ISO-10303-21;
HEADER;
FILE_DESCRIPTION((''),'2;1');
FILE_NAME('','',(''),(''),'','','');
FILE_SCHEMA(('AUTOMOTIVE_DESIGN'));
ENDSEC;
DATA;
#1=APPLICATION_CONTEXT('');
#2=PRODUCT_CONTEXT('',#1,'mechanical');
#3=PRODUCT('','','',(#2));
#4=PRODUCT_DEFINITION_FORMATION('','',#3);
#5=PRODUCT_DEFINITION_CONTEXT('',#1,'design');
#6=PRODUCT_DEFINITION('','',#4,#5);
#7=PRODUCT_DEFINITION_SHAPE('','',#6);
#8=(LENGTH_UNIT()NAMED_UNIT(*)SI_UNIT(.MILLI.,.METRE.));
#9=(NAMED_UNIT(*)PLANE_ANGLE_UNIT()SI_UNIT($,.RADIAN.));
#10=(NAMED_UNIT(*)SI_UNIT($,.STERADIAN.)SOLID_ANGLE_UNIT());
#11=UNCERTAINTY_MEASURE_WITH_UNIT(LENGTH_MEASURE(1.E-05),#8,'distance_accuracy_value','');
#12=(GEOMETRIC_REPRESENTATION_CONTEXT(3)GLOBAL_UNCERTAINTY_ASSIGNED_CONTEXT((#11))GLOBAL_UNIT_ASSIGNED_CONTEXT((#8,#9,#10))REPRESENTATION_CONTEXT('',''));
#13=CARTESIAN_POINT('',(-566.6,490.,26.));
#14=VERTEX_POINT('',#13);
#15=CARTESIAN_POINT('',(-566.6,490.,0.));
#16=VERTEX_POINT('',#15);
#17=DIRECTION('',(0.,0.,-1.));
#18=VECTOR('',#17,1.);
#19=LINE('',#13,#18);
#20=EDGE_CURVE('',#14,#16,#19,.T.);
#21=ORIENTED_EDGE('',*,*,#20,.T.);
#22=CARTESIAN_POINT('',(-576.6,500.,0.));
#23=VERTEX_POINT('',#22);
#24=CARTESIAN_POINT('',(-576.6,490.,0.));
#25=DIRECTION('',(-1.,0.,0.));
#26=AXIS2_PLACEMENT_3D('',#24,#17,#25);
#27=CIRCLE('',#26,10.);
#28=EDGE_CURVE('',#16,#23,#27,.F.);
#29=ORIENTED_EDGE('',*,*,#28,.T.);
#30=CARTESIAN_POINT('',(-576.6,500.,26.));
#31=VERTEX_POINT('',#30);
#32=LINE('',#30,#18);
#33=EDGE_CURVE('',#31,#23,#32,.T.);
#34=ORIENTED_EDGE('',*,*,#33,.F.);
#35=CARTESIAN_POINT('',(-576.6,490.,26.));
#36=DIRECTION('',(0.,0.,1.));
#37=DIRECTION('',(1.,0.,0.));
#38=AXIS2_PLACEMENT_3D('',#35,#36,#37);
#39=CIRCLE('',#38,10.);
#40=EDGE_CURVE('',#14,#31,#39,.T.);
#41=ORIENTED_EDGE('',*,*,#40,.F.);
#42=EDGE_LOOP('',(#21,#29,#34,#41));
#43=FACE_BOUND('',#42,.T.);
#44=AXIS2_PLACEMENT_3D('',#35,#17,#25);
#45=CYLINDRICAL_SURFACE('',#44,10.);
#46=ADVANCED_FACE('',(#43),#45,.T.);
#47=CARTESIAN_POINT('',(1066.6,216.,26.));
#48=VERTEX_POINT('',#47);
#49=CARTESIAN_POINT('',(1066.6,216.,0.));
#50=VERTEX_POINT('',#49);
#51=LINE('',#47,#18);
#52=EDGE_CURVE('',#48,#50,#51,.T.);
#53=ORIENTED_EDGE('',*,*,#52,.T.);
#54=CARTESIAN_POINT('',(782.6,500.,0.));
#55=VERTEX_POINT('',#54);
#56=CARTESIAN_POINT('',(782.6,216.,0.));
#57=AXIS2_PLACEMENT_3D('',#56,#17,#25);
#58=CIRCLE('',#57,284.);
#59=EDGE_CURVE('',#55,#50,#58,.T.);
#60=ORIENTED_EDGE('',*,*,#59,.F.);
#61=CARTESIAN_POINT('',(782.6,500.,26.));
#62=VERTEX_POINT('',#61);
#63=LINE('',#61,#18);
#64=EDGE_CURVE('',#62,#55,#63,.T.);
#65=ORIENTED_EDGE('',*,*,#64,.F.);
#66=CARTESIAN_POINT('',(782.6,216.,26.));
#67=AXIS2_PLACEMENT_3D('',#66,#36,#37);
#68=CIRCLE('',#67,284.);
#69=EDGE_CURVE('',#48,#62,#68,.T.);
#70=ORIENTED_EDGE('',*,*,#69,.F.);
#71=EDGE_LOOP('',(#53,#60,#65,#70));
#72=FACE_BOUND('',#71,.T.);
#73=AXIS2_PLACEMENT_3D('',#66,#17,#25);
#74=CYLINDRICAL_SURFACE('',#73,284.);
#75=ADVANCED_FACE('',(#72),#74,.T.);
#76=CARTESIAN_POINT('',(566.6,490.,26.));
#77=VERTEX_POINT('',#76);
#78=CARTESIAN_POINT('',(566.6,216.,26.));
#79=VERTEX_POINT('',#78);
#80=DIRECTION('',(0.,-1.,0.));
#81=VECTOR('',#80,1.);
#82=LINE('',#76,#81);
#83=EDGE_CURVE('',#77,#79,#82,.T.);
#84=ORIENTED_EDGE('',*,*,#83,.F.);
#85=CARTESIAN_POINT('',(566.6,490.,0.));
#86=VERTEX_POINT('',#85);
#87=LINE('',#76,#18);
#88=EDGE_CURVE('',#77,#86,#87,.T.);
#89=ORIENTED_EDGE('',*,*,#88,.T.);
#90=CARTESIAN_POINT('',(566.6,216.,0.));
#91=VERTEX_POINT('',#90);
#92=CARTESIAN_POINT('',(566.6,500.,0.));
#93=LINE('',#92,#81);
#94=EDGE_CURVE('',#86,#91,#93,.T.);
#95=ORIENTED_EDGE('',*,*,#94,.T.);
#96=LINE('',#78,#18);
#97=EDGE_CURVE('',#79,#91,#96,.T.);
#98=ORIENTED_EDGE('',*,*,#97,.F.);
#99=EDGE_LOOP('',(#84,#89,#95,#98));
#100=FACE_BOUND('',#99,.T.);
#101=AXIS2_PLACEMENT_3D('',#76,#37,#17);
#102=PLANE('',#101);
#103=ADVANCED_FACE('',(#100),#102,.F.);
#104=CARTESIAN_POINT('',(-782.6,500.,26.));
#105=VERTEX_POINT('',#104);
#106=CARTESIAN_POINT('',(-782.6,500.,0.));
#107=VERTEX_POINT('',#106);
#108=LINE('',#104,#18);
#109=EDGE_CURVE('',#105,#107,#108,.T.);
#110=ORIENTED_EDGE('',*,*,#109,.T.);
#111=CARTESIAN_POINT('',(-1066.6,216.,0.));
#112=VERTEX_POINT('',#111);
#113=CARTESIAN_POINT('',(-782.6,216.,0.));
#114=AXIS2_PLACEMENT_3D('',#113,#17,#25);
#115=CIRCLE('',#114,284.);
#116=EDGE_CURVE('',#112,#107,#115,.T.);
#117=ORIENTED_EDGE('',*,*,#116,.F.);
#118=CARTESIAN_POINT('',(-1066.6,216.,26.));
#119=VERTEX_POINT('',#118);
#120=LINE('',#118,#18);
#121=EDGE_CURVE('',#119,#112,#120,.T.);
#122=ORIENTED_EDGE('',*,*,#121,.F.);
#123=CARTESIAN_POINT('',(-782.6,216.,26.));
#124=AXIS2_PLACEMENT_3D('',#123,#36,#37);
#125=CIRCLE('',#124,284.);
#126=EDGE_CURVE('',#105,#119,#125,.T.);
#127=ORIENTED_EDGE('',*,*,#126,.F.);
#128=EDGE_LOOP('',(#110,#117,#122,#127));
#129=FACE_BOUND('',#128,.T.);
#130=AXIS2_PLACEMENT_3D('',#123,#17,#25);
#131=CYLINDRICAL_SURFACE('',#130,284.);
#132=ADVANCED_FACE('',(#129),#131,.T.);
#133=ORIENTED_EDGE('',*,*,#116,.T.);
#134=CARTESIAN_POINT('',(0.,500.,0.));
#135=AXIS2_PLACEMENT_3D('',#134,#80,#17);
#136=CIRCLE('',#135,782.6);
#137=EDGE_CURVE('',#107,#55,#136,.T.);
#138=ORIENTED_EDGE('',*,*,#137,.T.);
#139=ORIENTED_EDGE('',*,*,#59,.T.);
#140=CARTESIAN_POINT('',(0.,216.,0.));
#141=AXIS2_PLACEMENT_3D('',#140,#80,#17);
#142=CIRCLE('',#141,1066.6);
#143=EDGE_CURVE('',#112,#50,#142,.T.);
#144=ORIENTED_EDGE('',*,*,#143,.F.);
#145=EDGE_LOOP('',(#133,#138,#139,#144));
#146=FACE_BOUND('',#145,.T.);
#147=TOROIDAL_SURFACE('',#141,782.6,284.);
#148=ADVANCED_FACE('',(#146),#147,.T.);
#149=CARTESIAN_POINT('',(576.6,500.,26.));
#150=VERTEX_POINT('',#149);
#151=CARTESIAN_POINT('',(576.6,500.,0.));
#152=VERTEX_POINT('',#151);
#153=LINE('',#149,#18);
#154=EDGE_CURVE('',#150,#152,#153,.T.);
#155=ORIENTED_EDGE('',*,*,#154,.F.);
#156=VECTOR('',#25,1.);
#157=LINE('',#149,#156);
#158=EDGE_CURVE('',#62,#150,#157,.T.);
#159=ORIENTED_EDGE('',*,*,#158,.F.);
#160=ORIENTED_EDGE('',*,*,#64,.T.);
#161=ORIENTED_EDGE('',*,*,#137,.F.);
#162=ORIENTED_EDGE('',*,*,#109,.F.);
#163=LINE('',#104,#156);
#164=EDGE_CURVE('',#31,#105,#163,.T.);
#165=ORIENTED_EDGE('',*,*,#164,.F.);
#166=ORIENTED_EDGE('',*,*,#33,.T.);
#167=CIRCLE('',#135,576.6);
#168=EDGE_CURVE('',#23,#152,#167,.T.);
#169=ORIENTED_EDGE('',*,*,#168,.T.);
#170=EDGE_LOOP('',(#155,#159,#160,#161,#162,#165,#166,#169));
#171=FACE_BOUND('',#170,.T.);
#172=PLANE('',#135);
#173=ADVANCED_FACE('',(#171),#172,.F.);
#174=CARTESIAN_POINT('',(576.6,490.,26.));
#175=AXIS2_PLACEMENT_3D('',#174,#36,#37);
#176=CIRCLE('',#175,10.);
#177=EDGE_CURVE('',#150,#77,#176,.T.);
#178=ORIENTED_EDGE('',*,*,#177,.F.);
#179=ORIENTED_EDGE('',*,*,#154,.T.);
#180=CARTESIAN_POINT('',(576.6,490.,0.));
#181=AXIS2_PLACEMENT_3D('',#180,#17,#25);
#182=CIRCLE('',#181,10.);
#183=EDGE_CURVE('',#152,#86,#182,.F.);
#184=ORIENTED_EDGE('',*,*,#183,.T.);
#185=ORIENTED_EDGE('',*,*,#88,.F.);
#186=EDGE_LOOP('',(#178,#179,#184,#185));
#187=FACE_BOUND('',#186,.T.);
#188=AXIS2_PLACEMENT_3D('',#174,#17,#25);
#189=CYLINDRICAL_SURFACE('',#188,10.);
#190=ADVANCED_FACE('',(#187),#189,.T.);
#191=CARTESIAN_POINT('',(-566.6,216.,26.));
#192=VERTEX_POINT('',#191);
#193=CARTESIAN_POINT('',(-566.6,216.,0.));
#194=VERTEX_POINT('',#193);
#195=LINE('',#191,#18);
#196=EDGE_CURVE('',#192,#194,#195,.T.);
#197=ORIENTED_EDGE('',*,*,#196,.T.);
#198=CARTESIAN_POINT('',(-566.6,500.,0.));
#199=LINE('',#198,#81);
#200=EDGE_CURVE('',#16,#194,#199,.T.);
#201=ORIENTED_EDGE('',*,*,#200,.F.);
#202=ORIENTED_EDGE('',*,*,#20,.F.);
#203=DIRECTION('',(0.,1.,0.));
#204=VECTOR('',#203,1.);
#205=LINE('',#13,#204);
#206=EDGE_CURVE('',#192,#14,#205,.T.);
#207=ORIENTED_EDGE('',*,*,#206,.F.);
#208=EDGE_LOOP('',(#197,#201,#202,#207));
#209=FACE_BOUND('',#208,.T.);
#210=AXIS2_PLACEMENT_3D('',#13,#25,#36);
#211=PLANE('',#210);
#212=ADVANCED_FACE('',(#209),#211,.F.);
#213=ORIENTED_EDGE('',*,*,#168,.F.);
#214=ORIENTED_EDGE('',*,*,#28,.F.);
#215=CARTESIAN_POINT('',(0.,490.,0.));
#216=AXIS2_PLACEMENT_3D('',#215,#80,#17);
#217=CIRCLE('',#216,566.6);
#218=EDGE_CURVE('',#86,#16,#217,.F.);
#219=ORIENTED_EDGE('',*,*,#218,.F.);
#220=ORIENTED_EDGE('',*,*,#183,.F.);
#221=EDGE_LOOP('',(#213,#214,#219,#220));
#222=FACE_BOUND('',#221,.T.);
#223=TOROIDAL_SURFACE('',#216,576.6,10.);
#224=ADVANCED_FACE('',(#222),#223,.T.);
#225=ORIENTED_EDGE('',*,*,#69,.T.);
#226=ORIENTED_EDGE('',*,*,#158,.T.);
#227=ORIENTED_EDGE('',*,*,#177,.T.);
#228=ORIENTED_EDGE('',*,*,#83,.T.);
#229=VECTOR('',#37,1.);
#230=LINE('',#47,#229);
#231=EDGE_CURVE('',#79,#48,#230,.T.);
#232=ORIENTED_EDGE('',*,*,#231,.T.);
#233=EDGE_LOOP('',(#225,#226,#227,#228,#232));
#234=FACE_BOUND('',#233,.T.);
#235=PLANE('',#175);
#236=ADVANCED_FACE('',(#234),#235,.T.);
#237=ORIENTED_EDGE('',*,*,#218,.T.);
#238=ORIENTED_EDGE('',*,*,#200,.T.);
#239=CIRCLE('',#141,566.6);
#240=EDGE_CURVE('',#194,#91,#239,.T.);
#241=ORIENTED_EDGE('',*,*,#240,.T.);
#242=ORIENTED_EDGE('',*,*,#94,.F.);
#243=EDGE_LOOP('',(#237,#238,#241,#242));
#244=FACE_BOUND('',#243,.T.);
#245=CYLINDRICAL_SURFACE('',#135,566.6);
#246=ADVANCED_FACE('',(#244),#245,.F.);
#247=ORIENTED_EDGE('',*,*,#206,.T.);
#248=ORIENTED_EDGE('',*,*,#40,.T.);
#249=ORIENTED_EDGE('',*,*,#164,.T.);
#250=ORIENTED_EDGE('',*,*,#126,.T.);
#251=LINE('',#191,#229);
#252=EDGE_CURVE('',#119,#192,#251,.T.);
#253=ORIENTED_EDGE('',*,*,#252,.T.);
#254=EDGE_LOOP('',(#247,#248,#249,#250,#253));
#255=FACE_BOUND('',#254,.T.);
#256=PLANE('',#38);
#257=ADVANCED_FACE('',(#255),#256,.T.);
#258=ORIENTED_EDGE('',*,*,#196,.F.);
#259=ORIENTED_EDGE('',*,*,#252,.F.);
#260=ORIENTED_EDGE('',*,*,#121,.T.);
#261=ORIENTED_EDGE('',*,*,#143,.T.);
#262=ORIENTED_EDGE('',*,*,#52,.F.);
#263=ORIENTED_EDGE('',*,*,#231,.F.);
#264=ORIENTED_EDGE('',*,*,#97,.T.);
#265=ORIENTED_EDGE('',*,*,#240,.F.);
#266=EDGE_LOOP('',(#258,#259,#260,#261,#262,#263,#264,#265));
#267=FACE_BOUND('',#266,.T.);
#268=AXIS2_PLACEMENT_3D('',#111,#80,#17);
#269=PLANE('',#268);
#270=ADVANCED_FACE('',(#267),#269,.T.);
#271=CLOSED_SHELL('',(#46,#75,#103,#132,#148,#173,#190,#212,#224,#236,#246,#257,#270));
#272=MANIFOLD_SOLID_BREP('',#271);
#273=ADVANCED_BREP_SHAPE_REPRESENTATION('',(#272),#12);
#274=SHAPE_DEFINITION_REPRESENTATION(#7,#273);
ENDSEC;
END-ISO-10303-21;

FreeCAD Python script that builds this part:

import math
import FreeCAD as App
import Part
import Sketcher

V = App.Vector


def edges_at(feature, points):
    """Names of the edges that pass closest to the given points."""
    edges = feature.Shape.Edges
    near = lambda p: min(range(len(edges)), key=lambda i: edges[i].distToShape(Part.Vertex(*p))[0])
    return sorted({f"Edge{near(p) + 1}" for p in points})

doc = App.newDocument("Part")
params = doc.addObject("Spreadsheet::Sheet", "Params")
for row, (alias, value) in enumerate([
    ("sketch1_radius", "566.6 mm"),
    ("sketch1_radius2", "1066.6 mm"),
    ("pad1_length", "500 mm"),
    ("fillet_radius", "10 mm"),
    ("sketch2_radius", "284 mm"),
    ("sketch2_width", "500 mm"),
    ("groove_angle", "360 deg"),
    ("sketch3_radius", "284 mm"),
    ("sketch3_radius2", "10 mm"),
    ("sketch3_width", "206 mm"),
    ("pad2_length", "26 mm"),
], start=1):
    params.set(f"A{row}", alias)
    params.set(f"B{row}", "=" + value)
    params.setAlias(f"B{row}", alias)

body = doc.addObject("PartDesign::Body", "Body")

# Sketch on XZ plane
sketch1 = body.newObject("Sketcher::SketchObject", "Sketch")
sketch1.AttachmentSupport = (doc.getObject("XZ_Plane"), [""])
sketch1.MapMode = "FlatFace"
sketch1.addGeometry(Part.LineSegment(V(-1067, 0, 0), V(-567, 0, 0)), False)
sketch1.addGeometry(Part.ArcOfCircle(Part.Circle(V(0, 0, 0), V(0, 0, 1), 567), math.radians(180), math.radians(360)), False)
sketch1.addGeometry(Part.LineSegment(V(567, 0, 0), V(1067, 0, 0)), False)
sketch1.addGeometry(Part.ArcOfCircle(Part.Circle(V(0, 0, 0), V(0, 0, 1), 1067), math.radians(180), math.radians(360)), False)
sketch1.addConstraint(Sketcher.Constraint("Coincident", 0, 2, 1, 1))
sketch1.addConstraint(Sketcher.Constraint("Coincident", 1, 2, 2, 1))
sketch1.addConstraint(Sketcher.Constraint("Coincident", 2, 2, 3, 2))
sketch1.addConstraint(Sketcher.Constraint("Coincident", 3, 1, 0, 1))
sketch1.addConstraint(Sketcher.Constraint("Horizontal", 0))
sketch1.addConstraint(Sketcher.Constraint("Horizontal", 2))
sketch1.addConstraint(Sketcher.Constraint("Coincident", 1, 3, -1, 1))
sketch1.addConstraint(Sketcher.Constraint("Coincident", 3, 3, -1, 1))
sketch1.addConstraint(Sketcher.Constraint("PointOnObject", 0, 2, -1))
sketch1.addConstraint(Sketcher.Constraint("PointOnObject", 2, 2, -1))
sketch1.addConstraint(Sketcher.Constraint("Radius", 1, 566.6))
sketch1.addConstraint(Sketcher.Constraint("Radius", 3, 1066.6))
sketch1.setExpression("Constraints[10]", "Params.sketch1_radius")
sketch1.setExpression("Constraints[11]", "Params.sketch1_radius2")
pad1 = body.newObject("PartDesign::Pad", "Pad")
pad1.Profile = sketch1
pad1.setExpression("Length", "Params.pad1_length")
pad1.Reversed = True
doc.recompute()

fillet = body.newObject("PartDesign::Fillet", "Fillet")
fillet.Base = (pad1, edges_at(pad1, [
    (0, 500, -1066.6),
    (0, 500, -566.6),
    (0, 0, -1066.6),
    (0, 0, -566.6),
]))
fillet.setExpression("Radius", "Params.fillet_radius")

# Sketch on XY plane
sketch2 = body.newObject("Sketcher::SketchObject", "Sketch001")
sketch2.AttachmentSupport = (doc.getObject("XY_Plane"), [""])
sketch2.MapMode = "FlatFace"
sketch2.addGeometry(Part.LineSegment(V(-567, 216, 0), V(-1067, 216, 0)), False)
sketch2.addGeometry(Part.ArcOfCircle(Part.Circle(V(-783, 216, 0), V(0, 0, 1), 284), math.radians(90), math.radians(180)), False)
sketch2.addGeometry(Part.LineSegment(V(-783, 500, 0), V(-1146, 500, 0)), False)
sketch2.addGeometry(Part.LineSegment(V(-1146, 500, 0), V(-1146, 0, 0)), False)
sketch2.addGeometry(Part.LineSegment(V(-1146, 0, 0), V(-567, 0, 0)), False)
sketch2.addGeometry(Part.LineSegment(V(-567, 0, 0), V(-567, 216, 0)), False)
sketch2.addConstraint(Sketcher.Constraint("Coincident", 0, 2, 1, 2))
sketch2.addConstraint(Sketcher.Constraint("Tangent", 1, 1, 2, 1))
sketch2.addConstraint(Sketcher.Constraint("Coincident", 2, 2, 3, 1))
sketch2.addConstraint(Sketcher.Constraint("Coincident", 3, 2, 4, 1))
sketch2.addConstraint(Sketcher.Constraint("Coincident", 4, 2, 5, 1))
sketch2.addConstraint(Sketcher.Constraint("Coincident", 5, 2, 0, 1))
sketch2.addConstraint(Sketcher.Constraint("Horizontal", 0))
sketch2.addConstraint(Sketcher.Constraint("Horizontal", 2))
sketch2.addConstraint(Sketcher.Constraint("Vertical", 3))
sketch2.addConstraint(Sketcher.Constraint("Horizontal", 4))
sketch2.addConstraint(Sketcher.Constraint("Vertical", 5))
sketch2.addConstraint(Sketcher.Constraint("PointOnObject", 3, 2, -1))
sketch2.addConstraint(Sketcher.Constraint("Horizontal", 1, 3, 0, 2))
sketch2.addConstraint(Sketcher.Constraint("Equal", 0, 3))
sketch2.addConstraint(Sketcher.Constraint("Radius", 1, 284.0))
sketch2.addConstraint(Sketcher.Constraint("DistanceX", 0, 2, 0, 1, 500.0))
sketch2.addConstraint(Sketcher.Constraint("DistanceX", 1, 3, -1, 1, 782.6))
sketch2.addConstraint(Sketcher.Constraint("DistanceX", 2, 2, 2, 1, 363.261103))
sketch2.setExpression("Constraints[14]", "Params.sketch2_radius")
sketch2.setExpression("Constraints[15]", "Params.sketch2_width")
groove = body.newObject("PartDesign::Groove", "Groove")
groove.Profile = sketch2
groove.ReferenceAxis = (sketch2, ["V_Axis"])
groove.setExpression("Angle", "Params.groove_angle")

# Sketch on XY plane
sketch3 = body.newObject("Sketcher::SketchObject", "Sketch002")
sketch3.AttachmentSupport = (doc.getObject("XY_Plane"), [""])
sketch3.MapMode = "FlatFace"
sketch3.addGeometry(Part.LineSegment(V(-577, 500, 0), V(-783, 500, 0)), False)
sketch3.addGeometry(Part.ArcOfCircle(Part.Circle(V(-783, 216, 0), V(0, 0, 1), 284), math.radians(90), math.radians(180)), False)
sketch3.addGeometry(Part.LineSegment(V(-1067, 216, 0), V(-567, 216, 0)), False)
sketch3.addGeometry(Part.LineSegment(V(-567, 216, 0), V(-567, 490, 0)), False)
sketch3.addGeometry(Part.ArcOfCircle(Part.Circle(V(-577, 490, 0), V(0, 0, 1), 10), math.radians(0), math.radians(90)), False)
sketch3.addGeometry(Part.LineSegment(V(783, 500, 0), V(577, 500, 0)), False)
sketch3.addGeometry(Part.ArcOfCircle(Part.Circle(V(577, 490, 0), V(0, 0, 1), 10), math.radians(90), math.radians(180)), False)
sketch3.addGeometry(Part.LineSegment(V(567, 490, 0), V(567, 216, 0)), False)
sketch3.addGeometry(Part.LineSegment(V(567, 216, 0), V(1067, 216, 0)), False)
sketch3.addGeometry(Part.ArcOfCircle(Part.Circle(V(783, 216, 0), V(0, 0, 1), 284), math.radians(0), math.radians(90)), False)
sketch3.addConstraint(Sketcher.Constraint("Tangent", 0, 2, 1, 1))
sketch3.addConstraint(Sketcher.Constraint("Coincident", 1, 2, 2, 1))
sketch3.addConstraint(Sketcher.Constraint("Coincident", 2, 2, 3, 1))
sketch3.addConstraint(Sketcher.Constraint("Tangent", 3, 2, 4, 1))
sketch3.addConstraint(Sketcher.Constraint("Tangent", 4, 2, 0, 1))
sketch3.addConstraint(Sketcher.Constraint("Tangent", 5, 2, 6, 1))
sketch3.addConstraint(Sketcher.Constraint("Tangent", 6, 2, 7, 1))
sketch3.addConstraint(Sketcher.Constraint("Coincident", 7, 2, 8, 1))
sketch3.addConstraint(Sketcher.Constraint("Coincident", 8, 2, 9, 1))
sketch3.addConstraint(Sketcher.Constraint("Tangent", 9, 2, 5, 1))
sketch3.addConstraint(Sketcher.Constraint("Horizontal", 0))
sketch3.addConstraint(Sketcher.Constraint("Horizontal", 2))
sketch3.addConstraint(Sketcher.Constraint("Vertical", 3))
sketch3.addConstraint(Sketcher.Constraint("Horizontal", 5))
sketch3.addConstraint(Sketcher.Constraint("Vertical", 7))
sketch3.addConstraint(Sketcher.Constraint("Horizontal", 8))
sketch3.addConstraint(Sketcher.Constraint("Equal", 4, 6))
sketch3.addConstraint(Sketcher.Constraint("Equal", 1, 9))
sketch3.addConstraint(Sketcher.Constraint("Symmetric", 4, 3, 6, 3, -2))
sketch3.addConstraint(Sketcher.Constraint("Symmetric", 1, 2, 8, 2, -2))
sketch3.addConstraint(Sketcher.Constraint("Horizontal", 9, 3, 1, 2))
sketch3.addConstraint(Sketcher.Constraint("Radius", 1, 284.0))
sketch3.addConstraint(Sketcher.Constraint("Radius", 4, 10.0))
sketch3.addConstraint(Sketcher.Constraint("DistanceX", 0, 2, 0, 1, 206.0))
sketch3.addConstraint(Sketcher.Constraint("DistanceY", -1, 1, 1, 3, 216.0))
sketch3.addConstraint(Sketcher.Constraint("DistanceX", 1, 3, -1, 1, 782.6))
sketch3.setExpression("Constraints[21]", "Params.sketch3_radius")
sketch3.setExpression("Constraints[22]", "Params.sketch3_radius2")
sketch3.setExpression("Constraints[23]", "Params.sketch3_width")
pad2 = body.newObject("PartDesign::Pad", "Pad001")
pad2.Profile = sketch3
pad2.setExpression("Length", "Params.pad2_length")

doc.recompute()
